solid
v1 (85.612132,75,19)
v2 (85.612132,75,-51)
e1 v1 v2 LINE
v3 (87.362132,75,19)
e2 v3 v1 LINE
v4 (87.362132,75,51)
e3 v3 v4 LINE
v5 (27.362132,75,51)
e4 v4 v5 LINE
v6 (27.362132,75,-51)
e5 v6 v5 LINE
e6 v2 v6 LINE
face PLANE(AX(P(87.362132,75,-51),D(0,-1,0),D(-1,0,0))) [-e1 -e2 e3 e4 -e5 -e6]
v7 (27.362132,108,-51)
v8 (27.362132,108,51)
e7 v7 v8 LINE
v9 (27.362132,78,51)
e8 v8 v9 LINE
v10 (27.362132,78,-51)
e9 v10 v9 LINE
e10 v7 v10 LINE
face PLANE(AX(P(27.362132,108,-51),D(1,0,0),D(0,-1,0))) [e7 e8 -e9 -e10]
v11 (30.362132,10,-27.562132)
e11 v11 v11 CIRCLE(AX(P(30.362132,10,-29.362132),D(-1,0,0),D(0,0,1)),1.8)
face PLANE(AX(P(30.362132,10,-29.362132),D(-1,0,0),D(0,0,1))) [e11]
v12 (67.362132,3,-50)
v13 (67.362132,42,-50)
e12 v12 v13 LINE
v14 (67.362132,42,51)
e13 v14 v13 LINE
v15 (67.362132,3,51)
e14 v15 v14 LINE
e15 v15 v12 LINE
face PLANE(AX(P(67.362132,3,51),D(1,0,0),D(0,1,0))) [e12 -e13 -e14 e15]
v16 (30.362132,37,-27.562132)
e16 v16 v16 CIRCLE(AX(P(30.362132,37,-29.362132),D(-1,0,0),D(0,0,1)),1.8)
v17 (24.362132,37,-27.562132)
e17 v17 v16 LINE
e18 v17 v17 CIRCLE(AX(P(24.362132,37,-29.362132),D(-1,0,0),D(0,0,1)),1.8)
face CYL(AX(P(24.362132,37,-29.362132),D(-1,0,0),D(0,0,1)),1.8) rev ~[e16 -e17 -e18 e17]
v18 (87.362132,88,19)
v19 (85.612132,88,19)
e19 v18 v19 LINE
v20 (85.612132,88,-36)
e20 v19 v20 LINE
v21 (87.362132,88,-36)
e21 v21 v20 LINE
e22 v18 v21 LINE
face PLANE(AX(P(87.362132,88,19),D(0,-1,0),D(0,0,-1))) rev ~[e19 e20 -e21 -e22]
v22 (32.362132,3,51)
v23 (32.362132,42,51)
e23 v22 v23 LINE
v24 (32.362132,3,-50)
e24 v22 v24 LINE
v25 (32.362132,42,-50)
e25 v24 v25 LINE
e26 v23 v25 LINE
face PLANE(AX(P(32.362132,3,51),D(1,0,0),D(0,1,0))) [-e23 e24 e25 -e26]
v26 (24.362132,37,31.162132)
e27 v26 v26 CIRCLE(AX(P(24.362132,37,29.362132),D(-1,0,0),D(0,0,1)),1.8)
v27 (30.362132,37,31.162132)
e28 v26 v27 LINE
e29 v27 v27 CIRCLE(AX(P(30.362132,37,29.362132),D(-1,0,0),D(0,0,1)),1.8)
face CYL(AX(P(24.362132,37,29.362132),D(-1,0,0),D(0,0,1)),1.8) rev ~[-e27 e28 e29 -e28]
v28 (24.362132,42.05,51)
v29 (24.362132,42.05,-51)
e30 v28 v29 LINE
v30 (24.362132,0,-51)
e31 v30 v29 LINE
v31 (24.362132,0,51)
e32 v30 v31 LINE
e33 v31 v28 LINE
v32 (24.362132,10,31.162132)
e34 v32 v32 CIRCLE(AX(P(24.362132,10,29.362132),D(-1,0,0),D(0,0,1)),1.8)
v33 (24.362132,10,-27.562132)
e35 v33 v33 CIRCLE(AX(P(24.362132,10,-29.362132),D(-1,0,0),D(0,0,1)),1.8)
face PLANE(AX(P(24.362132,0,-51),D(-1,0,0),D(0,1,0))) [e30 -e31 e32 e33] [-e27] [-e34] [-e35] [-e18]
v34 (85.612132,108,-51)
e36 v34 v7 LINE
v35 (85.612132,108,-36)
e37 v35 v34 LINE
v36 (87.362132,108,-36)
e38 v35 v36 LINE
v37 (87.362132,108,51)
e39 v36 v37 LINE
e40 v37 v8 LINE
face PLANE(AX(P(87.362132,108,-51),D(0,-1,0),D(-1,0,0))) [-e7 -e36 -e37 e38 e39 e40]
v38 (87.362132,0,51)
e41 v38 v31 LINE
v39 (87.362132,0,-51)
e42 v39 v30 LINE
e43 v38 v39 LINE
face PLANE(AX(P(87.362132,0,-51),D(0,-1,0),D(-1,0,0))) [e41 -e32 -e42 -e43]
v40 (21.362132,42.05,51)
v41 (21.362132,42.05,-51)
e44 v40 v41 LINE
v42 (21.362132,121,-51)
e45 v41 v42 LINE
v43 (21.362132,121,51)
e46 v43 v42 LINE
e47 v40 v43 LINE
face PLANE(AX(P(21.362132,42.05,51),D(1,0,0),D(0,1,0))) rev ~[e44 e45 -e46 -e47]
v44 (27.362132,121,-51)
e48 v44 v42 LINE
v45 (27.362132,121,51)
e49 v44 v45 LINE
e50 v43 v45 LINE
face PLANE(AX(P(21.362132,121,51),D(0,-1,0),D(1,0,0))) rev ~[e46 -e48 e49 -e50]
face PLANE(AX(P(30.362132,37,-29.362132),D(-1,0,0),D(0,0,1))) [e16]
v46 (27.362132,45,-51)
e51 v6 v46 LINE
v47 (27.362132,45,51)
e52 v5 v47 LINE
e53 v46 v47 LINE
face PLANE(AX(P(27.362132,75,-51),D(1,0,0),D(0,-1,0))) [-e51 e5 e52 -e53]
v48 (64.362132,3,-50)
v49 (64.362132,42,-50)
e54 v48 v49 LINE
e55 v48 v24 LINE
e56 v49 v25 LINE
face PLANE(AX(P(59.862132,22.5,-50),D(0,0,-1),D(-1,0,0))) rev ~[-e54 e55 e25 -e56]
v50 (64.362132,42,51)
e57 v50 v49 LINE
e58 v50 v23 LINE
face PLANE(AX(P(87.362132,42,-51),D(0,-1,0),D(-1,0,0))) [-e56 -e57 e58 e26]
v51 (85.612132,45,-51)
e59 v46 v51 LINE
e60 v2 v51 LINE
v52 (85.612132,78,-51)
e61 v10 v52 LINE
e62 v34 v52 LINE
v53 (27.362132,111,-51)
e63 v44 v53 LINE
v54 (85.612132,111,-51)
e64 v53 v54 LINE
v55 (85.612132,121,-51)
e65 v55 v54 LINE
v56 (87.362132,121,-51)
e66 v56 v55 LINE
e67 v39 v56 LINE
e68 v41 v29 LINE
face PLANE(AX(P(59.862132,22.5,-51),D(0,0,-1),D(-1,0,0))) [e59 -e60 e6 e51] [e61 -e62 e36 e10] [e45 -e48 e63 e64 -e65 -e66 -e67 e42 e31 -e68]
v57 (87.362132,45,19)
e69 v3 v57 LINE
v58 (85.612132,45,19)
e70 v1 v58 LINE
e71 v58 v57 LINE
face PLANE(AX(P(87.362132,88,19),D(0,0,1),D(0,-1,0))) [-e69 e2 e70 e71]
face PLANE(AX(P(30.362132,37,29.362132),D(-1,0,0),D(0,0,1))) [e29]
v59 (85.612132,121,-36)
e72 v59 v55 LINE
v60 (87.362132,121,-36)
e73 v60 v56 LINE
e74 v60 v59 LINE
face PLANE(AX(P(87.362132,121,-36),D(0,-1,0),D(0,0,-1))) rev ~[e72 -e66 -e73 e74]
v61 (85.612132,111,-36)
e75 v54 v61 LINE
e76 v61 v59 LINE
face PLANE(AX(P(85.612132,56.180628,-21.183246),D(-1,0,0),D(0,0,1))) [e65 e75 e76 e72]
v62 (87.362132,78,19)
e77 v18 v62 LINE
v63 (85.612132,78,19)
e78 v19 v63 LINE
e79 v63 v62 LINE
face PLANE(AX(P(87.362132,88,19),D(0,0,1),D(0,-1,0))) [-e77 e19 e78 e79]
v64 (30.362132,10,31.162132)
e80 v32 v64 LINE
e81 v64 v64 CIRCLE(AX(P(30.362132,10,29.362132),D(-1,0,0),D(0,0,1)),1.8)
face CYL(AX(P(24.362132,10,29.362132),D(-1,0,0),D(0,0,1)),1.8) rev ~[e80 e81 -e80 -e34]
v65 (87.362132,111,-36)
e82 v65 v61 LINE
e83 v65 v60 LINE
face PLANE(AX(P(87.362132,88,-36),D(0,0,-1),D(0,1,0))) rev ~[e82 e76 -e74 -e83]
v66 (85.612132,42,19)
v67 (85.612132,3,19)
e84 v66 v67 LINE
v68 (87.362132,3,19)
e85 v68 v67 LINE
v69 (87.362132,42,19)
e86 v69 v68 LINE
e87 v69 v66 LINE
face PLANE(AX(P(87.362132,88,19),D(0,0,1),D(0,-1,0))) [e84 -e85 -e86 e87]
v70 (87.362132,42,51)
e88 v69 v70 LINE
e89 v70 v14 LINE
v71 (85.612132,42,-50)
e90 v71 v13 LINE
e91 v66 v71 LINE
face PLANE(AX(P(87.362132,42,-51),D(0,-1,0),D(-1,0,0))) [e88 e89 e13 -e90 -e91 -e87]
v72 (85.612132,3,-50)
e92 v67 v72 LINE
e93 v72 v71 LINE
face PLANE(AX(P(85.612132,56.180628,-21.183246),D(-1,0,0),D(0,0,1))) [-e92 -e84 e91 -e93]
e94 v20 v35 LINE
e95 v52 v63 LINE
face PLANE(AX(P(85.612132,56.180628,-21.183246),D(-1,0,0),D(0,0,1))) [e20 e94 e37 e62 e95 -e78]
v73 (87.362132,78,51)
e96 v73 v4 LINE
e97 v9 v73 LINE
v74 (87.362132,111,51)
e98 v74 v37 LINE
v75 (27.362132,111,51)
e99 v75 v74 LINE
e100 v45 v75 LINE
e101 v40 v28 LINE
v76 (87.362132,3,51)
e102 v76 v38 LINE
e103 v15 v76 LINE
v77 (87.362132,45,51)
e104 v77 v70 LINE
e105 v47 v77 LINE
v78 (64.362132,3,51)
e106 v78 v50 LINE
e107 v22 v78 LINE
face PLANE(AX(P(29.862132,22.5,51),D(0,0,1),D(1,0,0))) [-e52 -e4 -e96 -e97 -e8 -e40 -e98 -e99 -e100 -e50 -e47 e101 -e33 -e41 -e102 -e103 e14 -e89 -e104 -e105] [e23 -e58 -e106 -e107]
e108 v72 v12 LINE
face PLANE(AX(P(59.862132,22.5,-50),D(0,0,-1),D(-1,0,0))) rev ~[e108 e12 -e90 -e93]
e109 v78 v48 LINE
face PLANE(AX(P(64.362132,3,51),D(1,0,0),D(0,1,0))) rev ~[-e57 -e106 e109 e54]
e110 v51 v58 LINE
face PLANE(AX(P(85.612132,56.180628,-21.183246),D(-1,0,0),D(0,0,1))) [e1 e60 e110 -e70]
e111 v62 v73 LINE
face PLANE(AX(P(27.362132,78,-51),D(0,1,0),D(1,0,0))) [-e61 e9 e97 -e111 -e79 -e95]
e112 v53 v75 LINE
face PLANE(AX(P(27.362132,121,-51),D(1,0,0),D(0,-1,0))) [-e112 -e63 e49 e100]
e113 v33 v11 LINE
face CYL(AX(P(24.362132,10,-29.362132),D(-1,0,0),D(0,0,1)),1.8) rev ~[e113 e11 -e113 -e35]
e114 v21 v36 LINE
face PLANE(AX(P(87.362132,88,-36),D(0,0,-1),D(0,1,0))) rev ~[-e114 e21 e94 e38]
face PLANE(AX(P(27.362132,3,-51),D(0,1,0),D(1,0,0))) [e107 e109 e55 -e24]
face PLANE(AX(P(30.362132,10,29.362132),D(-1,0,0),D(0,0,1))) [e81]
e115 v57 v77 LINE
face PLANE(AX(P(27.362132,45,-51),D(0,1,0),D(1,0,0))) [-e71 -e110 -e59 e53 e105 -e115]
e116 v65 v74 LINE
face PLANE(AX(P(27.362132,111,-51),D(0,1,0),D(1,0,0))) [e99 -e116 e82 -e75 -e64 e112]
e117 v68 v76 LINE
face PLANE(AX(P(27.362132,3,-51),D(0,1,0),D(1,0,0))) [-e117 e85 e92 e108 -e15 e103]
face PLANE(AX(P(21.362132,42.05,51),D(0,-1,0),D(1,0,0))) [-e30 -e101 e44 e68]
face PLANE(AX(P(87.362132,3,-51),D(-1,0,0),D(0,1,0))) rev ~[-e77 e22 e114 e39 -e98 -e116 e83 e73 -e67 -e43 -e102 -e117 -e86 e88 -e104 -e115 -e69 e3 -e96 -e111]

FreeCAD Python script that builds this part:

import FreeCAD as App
import Part
import Sketcher


def add_polygon(sketch, points):
    """Adds a closed chain of lines whose ends are joined by coincident constraints."""
    first, n = sketch.GeometryCount, len(points)
    for a, b in zip(points, points[1:] + points[:1]):
        sketch.addGeometry(Part.LineSegment(App.Vector(*a, 0), App.Vector(*b, 0)), False)
    for i in range(n):
        sketch.addConstraint(Sketcher.Constraint("Coincident", first + i, 2, first + (i + 1) % n, 1))

doc = App.newDocument("Part")
body = doc.addObject("PartDesign::Body", "Body")

sketch1 = body.newObject("Sketcher::SketchObject", "Sketch")
sketch1.AttachmentSupport = (doc.getObject("XY_Plane"), [""])
sketch1.MapMode = "FlatFace"
add_polygon(sketch1, [(24.362132, 121), (24.362132, 0), (87.362132, 0), (87.362132, 3), (27.362132, 3), (27.362132, 42), (87.362132, 42), (87.362132, 45), (27.362132, 45), (27.362132, 75), (87.362132, 75), (87.362132, 78), (27.362132, 78), (27.362132, 108), (87.362132, 108), (87.362132, 111), (27.362132, 111), (27.362132, 121)])
sketch1.addConstraint(Sketcher.Constraint("Vertical", 0))
sketch1.addConstraint(Sketcher.Constraint("Horizontal", 1))
sketch1.addConstraint(Sketcher.Constraint("Vertical", 2))
sketch1.addConstraint(Sketcher.Constraint("Horizontal", 3))
sketch1.addConstraint(Sketcher.Constraint("Vertical", 4))
sketch1.addConstraint(Sketcher.Constraint("Horizontal", 5))
sketch1.addConstraint(Sketcher.Constraint("Vertical", 6))
sketch1.addConstraint(Sketcher.Constraint("Horizontal", 7))
sketch1.addConstraint(Sketcher.Constraint("Vertical", 8))
sketch1.addConstraint(Sketcher.Constraint("Horizontal", 9))
sketch1.addConstraint(Sketcher.Constraint("Vertical", 10))
sketch1.addConstraint(Sketcher.Constraint("Horizontal", 11))
sketch1.addConstraint(Sketcher.Constraint("Vertical", 12))
sketch1.addConstraint(Sketcher.Constraint("Horizontal", 13))
sketch1.addConstraint(Sketcher.Constraint("Vertical", 14))
sketch1.addConstraint(Sketcher.Constraint("Horizontal", 15))
sketch1.addConstraint(Sketcher.Constraint("Vertical", 16))
sketch1.addConstraint(Sketcher.Constraint("Horizontal", 17))
sketch1.addConstraint(Sketcher.Constraint("PointOnObject", 0, 2, -1))
sketch1.addConstraint(Sketcher.Constraint("Vertical", 2, 2, 5, 2))
sketch1.addConstraint(Sketcher.Constraint("Vertical", 4, 2, 7, 2))
sketch1.addConstraint(Sketcher.Constraint("Vertical", 6, 2, 9, 2))
sketch1.addConstraint(Sketcher.Constraint("Vertical", 8, 2, 11, 2))
sketch1.addConstraint(Sketcher.Constraint("Vertical", 10, 2, 13, 2))
sketch1.addConstraint(Sketcher.Constraint("Vertical", 12, 2, 15, 2))
sketch1.addConstraint(Sketcher.Constraint("Equal", 17, 2))
sketch1.addConstraint(Sketcher.Constraint("Equal", 2, 6))
sketch1.addConstraint(Sketcher.Constraint("Equal", 6, 10))
sketch1.addConstraint(Sketcher.Constraint("Equal", 8, 12))
sketch1.addConstraint(Sketcher.Constraint("Equal", 10, 14))
sketch1.addConstraint(Sketcher.Constraint("DistanceX", 1, 1, 1, 2, 63.0))
sketch1.addConstraint(Sketcher.Constraint("DistanceX", 3, 2, 3, 1, 60.0))
sketch1.addConstraint(Sketcher.Constraint("DistanceY", 0, 2, 0, 1, 121.0))
sketch1.addConstraint(Sketcher.Constraint("DistanceY", 4, 1, 4, 2, 39.0))
sketch1.addConstraint(Sketcher.Constraint("DistanceY", 8, 1, 8, 2, 30.0))
sketch1.addConstraint(Sketcher.Constraint("DistanceX", -1, 1, 0, 2, 24.362132))
pad1 = body.newObject("PartDesign::Pad", "Pad")
pad1.Profile = sketch1
pad1.Type = "TwoLengths"
pad1.Length = 51
pad1.Length2 = 51

sketch2 = body.newObject("Sketcher::SketchObject", "Sketch001")
sketch2.AttachmentSupport = (doc.getObject("XY_Plane"), [""])
sketch2.MapMode = "FlatFace"
sketch2.AttachmentOffset = App.Placement(App.Vector(0, 0, 51), App.Rotation())
add_polygon(sketch2, [(21.362132, 121), (21.362132, 42.05), (24.362132, 42.05), (24.362132, 121)])
sketch2.addConstraint(Sketcher.Constraint("Vertical", 0))
sketch2.addConstraint(Sketcher.Constraint("Horizontal", 1))
sketch2.addConstraint(Sketcher.Constraint("Vertical", 2))
sketch2.addConstraint(Sketcher.Constraint("Horizontal", 3))
sketch2.addConstraint(Sketcher.Constraint("DistanceX", 1, 1, 1, 2, 3.0))
sketch2.addConstraint(Sketcher.Constraint("DistanceY", -1, 1, 2, 2, 121.0))
sketch2.addConstraint(Sketcher.Constraint("DistanceY", 0, 2, 0, 1, 78.95))
sketch2.addConstraint(Sketcher.Constraint("DistanceX", -1, 1, 0, 2, 21.362132))
pad2 = body.newObject("PartDesign::Pad", "Pad001")
pad2.Profile = sketch2
pad2.Length = 102
pad2.Reversed = True

sketch3 = body.newObject("Sketcher::SketchObject", "Sketch002")
sketch3.AttachmentSupport = (doc.getObject("XY_Plane"), [""])
sketch3.MapMode = "FlatFace"
sketch3.AttachmentOffset = App.Placement(App.Vector(0, 0, 51), App.Rotation())
add_polygon(sketch3, [(27.362132, 42), (27.362132, 3), (32.362132, 3), (32.362132, 42)])
add_polygon(sketch3, [(64.362132, 42), (64.362132, 3), (67.362132, 3), (67.362132, 42)])
sketch3.addConstraint(Sketcher.Constraint("Vertical", 0))
sketch3.addConstraint(Sketcher.Constraint("Horizontal", 1))
sketch3.addConstraint(Sketcher.Constraint("Vertical", 2))
sketch3.addConstraint(Sketcher.Constraint("Horizontal", 3))
sketch3.addConstraint(Sketcher.Constraint("Vertical", 4))
sketch3.addConstraint(Sketcher.Constraint("Horizontal", 5))
sketch3.addConstraint(Sketcher.Constraint("Vertical", 6))
sketch3.addConstraint(Sketcher.Constraint("Horizontal", 7))
sketch3.addConstraint(Sketcher.Constraint("Horizontal", 1, 2, 4, 2))
sketch3.addConstraint(Sketcher.Constraint("Horizontal", 3, 2, 6, 2))
sketch3.addConstraint(Sketcher.Constraint("DistanceX", 1, 1, 1, 2, 5.0))
sketch3.addConstraint(Sketcher.Constraint("DistanceX", 5, 1, 5, 2, 3.0))
sketch3.addConstraint(Sketcher.Constraint("DistanceY", 0, 2, 0, 1, 39.0))
sketch3.addConstraint(Sketcher.Constraint("DistanceY", -1, 1, 0, 2, 3.0))
sketch3.addConstraint(Sketcher.Constraint("DistanceX", 1, 2, 4, 2, 32.0))
sketch3.addConstraint(Sketcher.Constraint("DistanceX", -1, 1, 0, 2, 27.362132))
pad3 = body.newObject("PartDesign::Pad", "Pad002")
pad3.Profile = sketch3
pad3.Length = 102
pad3.Reversed = True

sketch4 = body.newObject("Sketcher::SketchObject", "Sketch003")
sketch4.AttachmentSupport = (doc.getObject("XY_Plane"), [""])
sketch4.MapMode = "FlatFace"
sketch4.AttachmentOffset = App.Placement(App.Vector(0, 0, -51), App.Rotation())
add_polygon(sketch4, [(87.362132, 42), (87.362132, 3), (32.362132, 3), (32.362132, 42)])
sketch4.addConstraint(Sketcher.Constraint("Vertical", 0))
sketch4.addConstraint(Sketcher.Constraint("Horizontal", 1))
sketch4.addConstraint(Sketcher.Constraint("Vertical", 2))
sketch4.addConstraint(Sketcher.Constraint("Horizontal", 3))
sketch4.addConstraint(Sketcher.Constraint("DistanceX", 1, 2, 1, 1, 55.0))
sketch4.addConstraint(Sketcher.Constraint("DistanceY", 0, 2, 0, 1, 39.0))
sketch4.addConstraint(Sketcher.Constraint("DistanceY", -1, 1, 0, 2, 3.0))
sketch4.addConstraint(Sketcher.Constraint("DistanceX", -1, 1, 0, 2, 87.362132))
pad4 = body.newObject("PartDesign::Pad", "Pad003")
pad4.Profile = sketch4
pad4.Length = 1

sketch5 = body.newObject("Sketcher::SketchObject", "Sketch004")
sketch5.AttachmentSupport = (doc.getObject("YZ_Plane"), [""])
sketch5.MapMode = "FlatFace"
sketch5.AttachmentOffset = App.Placement(App.Vector(0, 0, 87.362132), App.Rotation())
add_polygon(sketch5, [(3, -36), (0, -36), (0, -51), (121, -51), (121, -36), (88, -36), (88, 19), (3, 19)])
sketch5.addConstraint(Sketcher.Constraint("Horizontal", 0))
sketch5.addConstraint(Sketcher.Constraint("Vertical", 1))
sketch5.addConstraint(Sketcher.Constraint("Horizontal", 2))
sketch5.addConstraint(Sketcher.Constraint("Vertical", 3))
sketch5.addConstraint(Sketcher.Constraint("Horizontal", 4))
sketch5.addConstraint(Sketcher.Constraint("Vertical", 5))
sketch5.addConstraint(Sketcher.Constraint("Horizontal", 6))
sketch5.addConstraint(Sketcher.Constraint("Vertical", 7))
sketch5.addConstraint(Sketcher.Constraint("PointOnObject", 0, 2, -2))
sketch5.addConstraint(Sketcher.Constraint("Horizontal", 0, 2, 3, 2))
sketch5.addConstraint(Sketcher.Constraint("DistanceX", 0, 2, 0, 1, 3.0))
sketch5.addConstraint(Sketcher.Constraint("DistanceX", 2, 1, 2, 2, 121.0))
sketch5.addConstraint(Sketcher.Constraint("DistanceX", 4, 2, 4, 1, 33.0))
sketch5.addConstraint(Sketcher.Constraint("DistanceY", 1, 2, 1, 1, 15.0))
sketch5.addConstraint(Sketcher.Constraint("DistanceY", 5, 1, 5, 2, 55.0))
sketch5.addConstraint(Sketcher.Constraint("DistanceY", 0, 2, -1, 1, 36.0))
pad5 = body.newObject("PartDesign::Pad", "Pad004")
pad5.Profile = sketch5
pad5.Length = 1.75
pad5.Reversed = True

sketch6 = body.newObject("Sketcher::SketchObject", "Sketch005")
sketch6.AttachmentSupport = (doc.getObject("YZ_Plane"), [""])
sketch6.MapMode = "FlatFace"
sketch6.AttachmentOffset = App.Placement(App.Vector(0, 0, 24.362132), App.Rotation())
sketch6.addGeometry(Part.Circle(App.Vector(37, -29.362132, 0), App.Vector(0, 0, 1), 1.8), False)
sketch6.addGeometry(Part.Circle(App.Vector(10, -29.362132, 0), App.Vector(0, 0, 1), 1.8), False)
sketch6.addGeometry(Part.Circle(App.Vector(10, 29.362132, 0), App.Vector(0, 0, 1), 1.8), False)
sketch6.addGeometry(Part.Circle(App.Vector(37, 29.362132, 0), App.Vector(0, 0, 1), 1.8), False)
sketch6.addConstraint(Sketcher.Constraint("Equal", 0, 1))
sketch6.addConstraint(Sketcher.Constraint("Equal", 1, 2))
sketch6.addConstraint(Sketcher.Constraint("Equal", 2, 3))
sketch6.addConstraint(Sketcher.Constraint("Symmetric", 1, 3, 2, 3, -1))
sketch6.addConstraint(Sketcher.Constraint("Symmetric", 0, 3, 3, 3, -1))
sketch6.addConstraint(Sketcher.Constraint("Horizontal", 0, 3, 1, 3))
sketch6.addConstraint(Sketcher.Constraint("Diameter", 0, 3.6))
sketch6.addConstraint(Sketcher.Constraint("DistanceX", -1, 1, 0, 3, 37.0))
sketch6.addConstraint(Sketcher.Constraint("DistanceX", -1, 1, 1, 3, 10.0))
sketch6.addConstraint(Sketcher.Constraint("DistanceY", 0, 3, -1, 1, 29.362132))
pocket1 = body.newObject("PartDesign::Pocket", "Pocket")
pocket1.Profile = sketch6
pocket1.Length = 6
pocket1.Reversed = True

doc.recompute()
